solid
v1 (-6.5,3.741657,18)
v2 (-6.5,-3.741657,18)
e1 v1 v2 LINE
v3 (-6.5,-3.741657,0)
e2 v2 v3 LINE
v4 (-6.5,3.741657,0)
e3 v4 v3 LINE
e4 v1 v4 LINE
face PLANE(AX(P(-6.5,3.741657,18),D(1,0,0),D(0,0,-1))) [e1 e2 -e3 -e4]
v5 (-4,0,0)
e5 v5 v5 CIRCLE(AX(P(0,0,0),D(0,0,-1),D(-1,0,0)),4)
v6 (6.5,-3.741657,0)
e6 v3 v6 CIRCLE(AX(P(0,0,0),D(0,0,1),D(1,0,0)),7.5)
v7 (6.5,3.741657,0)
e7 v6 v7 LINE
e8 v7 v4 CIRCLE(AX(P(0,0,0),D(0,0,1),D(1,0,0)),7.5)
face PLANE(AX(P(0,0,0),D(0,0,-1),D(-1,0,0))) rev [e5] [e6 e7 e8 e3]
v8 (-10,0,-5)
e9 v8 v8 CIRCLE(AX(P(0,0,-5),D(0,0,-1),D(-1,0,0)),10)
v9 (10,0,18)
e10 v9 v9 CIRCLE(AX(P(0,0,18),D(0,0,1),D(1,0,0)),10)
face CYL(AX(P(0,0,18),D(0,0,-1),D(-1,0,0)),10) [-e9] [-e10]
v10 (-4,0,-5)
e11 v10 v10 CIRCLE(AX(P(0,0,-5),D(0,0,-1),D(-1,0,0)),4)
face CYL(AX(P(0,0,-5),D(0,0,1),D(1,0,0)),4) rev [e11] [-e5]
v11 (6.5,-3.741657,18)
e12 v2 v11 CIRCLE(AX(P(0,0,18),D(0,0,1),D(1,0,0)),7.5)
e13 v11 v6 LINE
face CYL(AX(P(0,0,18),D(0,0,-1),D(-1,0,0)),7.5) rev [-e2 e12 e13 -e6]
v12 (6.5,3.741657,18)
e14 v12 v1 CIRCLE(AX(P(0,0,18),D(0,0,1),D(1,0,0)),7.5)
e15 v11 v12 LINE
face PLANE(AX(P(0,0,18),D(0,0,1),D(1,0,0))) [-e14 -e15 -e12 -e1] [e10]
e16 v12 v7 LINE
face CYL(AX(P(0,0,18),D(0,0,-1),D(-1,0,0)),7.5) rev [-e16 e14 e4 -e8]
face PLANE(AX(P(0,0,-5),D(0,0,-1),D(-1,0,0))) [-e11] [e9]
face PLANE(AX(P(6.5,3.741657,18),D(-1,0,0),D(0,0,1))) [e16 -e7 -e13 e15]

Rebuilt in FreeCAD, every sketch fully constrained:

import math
import FreeCAD as App
import Part
import Sketcher

V = App.Vector
Q = App.Units.Quantity

doc = App.newDocument("Part")
params = doc.addObject("Spreadsheet::Sheet", "Params")
for row, (alias, value) in enumerate([
    ("sketch1_diameter", "20 mm"),
    ("sketch1_radius", "7.5 mm"),
    ("pad1_length", "18 mm"),
    ("sketch2_diameter", "20 mm"),
    ("sketch2_diameter2", "8 mm"),
    ("pad2_length", "5 mm"),
], start=1):
    params.set(f"A{row}", alias)
    params.set(f"B{row}", "=" + value)
    params.setAlias(f"B{row}", alias)

body = doc.addObject("PartDesign::Body", "Body")

sketch1 = body.newObject("Sketcher::SketchObject", "Sketch")
sketch1.AttachmentSupport = (doc.getObject("XY_Plane"), [""])
sketch1.MapMode = "FlatFace"
sketch1.addGeometry([
    Part.Circle(V(0, 0, 0), V(0, 0, 1), 10),
    Part.LineSegment(V(-6, -4, 0), V(-6, 4, 0)),
    Part.ArcOfCircle(Part.Circle(V(0, 0, 0), V(0, 0, 1), 8), math.radians(30), math.radians(150)),
    Part.LineSegment(V(6, 4, 0), V(6, -4, 0)),
    Part.ArcOfCircle(Part.Circle(V(0, 0, 0), V(0, 0, 1), 8), math.radians(-150), math.radians(-30)),
], False)
sketch1.addConstraint([
    Sketcher.Constraint("Coincident", 1, 2, 2, 2),
    Sketcher.Constraint("Coincident", 2, 1, 3, 1),
    Sketcher.Constraint("Coincident", 3, 2, 4, 2),
    Sketcher.Constraint("Coincident", 4, 1, 1, 1),
    Sketcher.Constraint("Vertical", 1),
    Sketcher.Constraint("Vertical", 3),
    Sketcher.Constraint("Coincident", 0, 3, -1, 1),
    Sketcher.Constraint("Coincident", 2, 3, -1, 1),
    Sketcher.Constraint("Coincident", 4, 3, -1, 1),
    Sketcher.Constraint("Equal", 2, 4),
    Sketcher.Constraint("Horizontal", 1, 2, 2, 1),
    Sketcher.Constraint("Diameter", 0, Q("20 mm")),
    Sketcher.Constraint("Radius", 2, Q("7.5 mm")),
    Sketcher.Constraint("DistanceX", 1, 2, 2, 1, Q("13 mm")),
])
sketch1.setExpression("Constraints[11]", "Params.sketch1_diameter")
sketch1.setExpression("Constraints[12]", "Params.sketch1_radius")
pad1 = body.newObject("PartDesign::Pad", "Pad")
pad1.Profile = sketch1
pad1.setExpression("Length", "Params.pad1_length")

sketch2 = body.newObject("Sketcher::SketchObject", "Sketch001")
sketch2.AttachmentSupport = (doc.getObject("XY_Plane"), [""])
sketch2.MapMode = "FlatFace"
sketch2.addGeometry([
    Part.Circle(V(0, 0, 0), V(0, 0, 1), 10),
    Part.Circle(V(0, 0, 0), V(0, 0, 1), 4),
], False)
sketch2.addConstraint([
    Sketcher.Constraint("Coincident", 0, 3, -1, 1),
    Sketcher.Constraint("Coincident", 1, 3, -1, 1),
    Sketcher.Constraint("Diameter", 0, Q("20 mm")),
    Sketcher.Constraint("Diameter", 1, Q("8 mm")),
])
sketch2.setExpression("Constraints[2]", "Params.sketch2_diameter")
sketch2.setExpression("Constraints[3]", "Params.sketch2_diameter2")
pad2 = body.newObject("PartDesign::Pad", "Pad001")
pad2.Profile = sketch2
pad2.setExpression("Length", "Params.pad2_length")
pad2.Reversed = True

doc.recompute()
